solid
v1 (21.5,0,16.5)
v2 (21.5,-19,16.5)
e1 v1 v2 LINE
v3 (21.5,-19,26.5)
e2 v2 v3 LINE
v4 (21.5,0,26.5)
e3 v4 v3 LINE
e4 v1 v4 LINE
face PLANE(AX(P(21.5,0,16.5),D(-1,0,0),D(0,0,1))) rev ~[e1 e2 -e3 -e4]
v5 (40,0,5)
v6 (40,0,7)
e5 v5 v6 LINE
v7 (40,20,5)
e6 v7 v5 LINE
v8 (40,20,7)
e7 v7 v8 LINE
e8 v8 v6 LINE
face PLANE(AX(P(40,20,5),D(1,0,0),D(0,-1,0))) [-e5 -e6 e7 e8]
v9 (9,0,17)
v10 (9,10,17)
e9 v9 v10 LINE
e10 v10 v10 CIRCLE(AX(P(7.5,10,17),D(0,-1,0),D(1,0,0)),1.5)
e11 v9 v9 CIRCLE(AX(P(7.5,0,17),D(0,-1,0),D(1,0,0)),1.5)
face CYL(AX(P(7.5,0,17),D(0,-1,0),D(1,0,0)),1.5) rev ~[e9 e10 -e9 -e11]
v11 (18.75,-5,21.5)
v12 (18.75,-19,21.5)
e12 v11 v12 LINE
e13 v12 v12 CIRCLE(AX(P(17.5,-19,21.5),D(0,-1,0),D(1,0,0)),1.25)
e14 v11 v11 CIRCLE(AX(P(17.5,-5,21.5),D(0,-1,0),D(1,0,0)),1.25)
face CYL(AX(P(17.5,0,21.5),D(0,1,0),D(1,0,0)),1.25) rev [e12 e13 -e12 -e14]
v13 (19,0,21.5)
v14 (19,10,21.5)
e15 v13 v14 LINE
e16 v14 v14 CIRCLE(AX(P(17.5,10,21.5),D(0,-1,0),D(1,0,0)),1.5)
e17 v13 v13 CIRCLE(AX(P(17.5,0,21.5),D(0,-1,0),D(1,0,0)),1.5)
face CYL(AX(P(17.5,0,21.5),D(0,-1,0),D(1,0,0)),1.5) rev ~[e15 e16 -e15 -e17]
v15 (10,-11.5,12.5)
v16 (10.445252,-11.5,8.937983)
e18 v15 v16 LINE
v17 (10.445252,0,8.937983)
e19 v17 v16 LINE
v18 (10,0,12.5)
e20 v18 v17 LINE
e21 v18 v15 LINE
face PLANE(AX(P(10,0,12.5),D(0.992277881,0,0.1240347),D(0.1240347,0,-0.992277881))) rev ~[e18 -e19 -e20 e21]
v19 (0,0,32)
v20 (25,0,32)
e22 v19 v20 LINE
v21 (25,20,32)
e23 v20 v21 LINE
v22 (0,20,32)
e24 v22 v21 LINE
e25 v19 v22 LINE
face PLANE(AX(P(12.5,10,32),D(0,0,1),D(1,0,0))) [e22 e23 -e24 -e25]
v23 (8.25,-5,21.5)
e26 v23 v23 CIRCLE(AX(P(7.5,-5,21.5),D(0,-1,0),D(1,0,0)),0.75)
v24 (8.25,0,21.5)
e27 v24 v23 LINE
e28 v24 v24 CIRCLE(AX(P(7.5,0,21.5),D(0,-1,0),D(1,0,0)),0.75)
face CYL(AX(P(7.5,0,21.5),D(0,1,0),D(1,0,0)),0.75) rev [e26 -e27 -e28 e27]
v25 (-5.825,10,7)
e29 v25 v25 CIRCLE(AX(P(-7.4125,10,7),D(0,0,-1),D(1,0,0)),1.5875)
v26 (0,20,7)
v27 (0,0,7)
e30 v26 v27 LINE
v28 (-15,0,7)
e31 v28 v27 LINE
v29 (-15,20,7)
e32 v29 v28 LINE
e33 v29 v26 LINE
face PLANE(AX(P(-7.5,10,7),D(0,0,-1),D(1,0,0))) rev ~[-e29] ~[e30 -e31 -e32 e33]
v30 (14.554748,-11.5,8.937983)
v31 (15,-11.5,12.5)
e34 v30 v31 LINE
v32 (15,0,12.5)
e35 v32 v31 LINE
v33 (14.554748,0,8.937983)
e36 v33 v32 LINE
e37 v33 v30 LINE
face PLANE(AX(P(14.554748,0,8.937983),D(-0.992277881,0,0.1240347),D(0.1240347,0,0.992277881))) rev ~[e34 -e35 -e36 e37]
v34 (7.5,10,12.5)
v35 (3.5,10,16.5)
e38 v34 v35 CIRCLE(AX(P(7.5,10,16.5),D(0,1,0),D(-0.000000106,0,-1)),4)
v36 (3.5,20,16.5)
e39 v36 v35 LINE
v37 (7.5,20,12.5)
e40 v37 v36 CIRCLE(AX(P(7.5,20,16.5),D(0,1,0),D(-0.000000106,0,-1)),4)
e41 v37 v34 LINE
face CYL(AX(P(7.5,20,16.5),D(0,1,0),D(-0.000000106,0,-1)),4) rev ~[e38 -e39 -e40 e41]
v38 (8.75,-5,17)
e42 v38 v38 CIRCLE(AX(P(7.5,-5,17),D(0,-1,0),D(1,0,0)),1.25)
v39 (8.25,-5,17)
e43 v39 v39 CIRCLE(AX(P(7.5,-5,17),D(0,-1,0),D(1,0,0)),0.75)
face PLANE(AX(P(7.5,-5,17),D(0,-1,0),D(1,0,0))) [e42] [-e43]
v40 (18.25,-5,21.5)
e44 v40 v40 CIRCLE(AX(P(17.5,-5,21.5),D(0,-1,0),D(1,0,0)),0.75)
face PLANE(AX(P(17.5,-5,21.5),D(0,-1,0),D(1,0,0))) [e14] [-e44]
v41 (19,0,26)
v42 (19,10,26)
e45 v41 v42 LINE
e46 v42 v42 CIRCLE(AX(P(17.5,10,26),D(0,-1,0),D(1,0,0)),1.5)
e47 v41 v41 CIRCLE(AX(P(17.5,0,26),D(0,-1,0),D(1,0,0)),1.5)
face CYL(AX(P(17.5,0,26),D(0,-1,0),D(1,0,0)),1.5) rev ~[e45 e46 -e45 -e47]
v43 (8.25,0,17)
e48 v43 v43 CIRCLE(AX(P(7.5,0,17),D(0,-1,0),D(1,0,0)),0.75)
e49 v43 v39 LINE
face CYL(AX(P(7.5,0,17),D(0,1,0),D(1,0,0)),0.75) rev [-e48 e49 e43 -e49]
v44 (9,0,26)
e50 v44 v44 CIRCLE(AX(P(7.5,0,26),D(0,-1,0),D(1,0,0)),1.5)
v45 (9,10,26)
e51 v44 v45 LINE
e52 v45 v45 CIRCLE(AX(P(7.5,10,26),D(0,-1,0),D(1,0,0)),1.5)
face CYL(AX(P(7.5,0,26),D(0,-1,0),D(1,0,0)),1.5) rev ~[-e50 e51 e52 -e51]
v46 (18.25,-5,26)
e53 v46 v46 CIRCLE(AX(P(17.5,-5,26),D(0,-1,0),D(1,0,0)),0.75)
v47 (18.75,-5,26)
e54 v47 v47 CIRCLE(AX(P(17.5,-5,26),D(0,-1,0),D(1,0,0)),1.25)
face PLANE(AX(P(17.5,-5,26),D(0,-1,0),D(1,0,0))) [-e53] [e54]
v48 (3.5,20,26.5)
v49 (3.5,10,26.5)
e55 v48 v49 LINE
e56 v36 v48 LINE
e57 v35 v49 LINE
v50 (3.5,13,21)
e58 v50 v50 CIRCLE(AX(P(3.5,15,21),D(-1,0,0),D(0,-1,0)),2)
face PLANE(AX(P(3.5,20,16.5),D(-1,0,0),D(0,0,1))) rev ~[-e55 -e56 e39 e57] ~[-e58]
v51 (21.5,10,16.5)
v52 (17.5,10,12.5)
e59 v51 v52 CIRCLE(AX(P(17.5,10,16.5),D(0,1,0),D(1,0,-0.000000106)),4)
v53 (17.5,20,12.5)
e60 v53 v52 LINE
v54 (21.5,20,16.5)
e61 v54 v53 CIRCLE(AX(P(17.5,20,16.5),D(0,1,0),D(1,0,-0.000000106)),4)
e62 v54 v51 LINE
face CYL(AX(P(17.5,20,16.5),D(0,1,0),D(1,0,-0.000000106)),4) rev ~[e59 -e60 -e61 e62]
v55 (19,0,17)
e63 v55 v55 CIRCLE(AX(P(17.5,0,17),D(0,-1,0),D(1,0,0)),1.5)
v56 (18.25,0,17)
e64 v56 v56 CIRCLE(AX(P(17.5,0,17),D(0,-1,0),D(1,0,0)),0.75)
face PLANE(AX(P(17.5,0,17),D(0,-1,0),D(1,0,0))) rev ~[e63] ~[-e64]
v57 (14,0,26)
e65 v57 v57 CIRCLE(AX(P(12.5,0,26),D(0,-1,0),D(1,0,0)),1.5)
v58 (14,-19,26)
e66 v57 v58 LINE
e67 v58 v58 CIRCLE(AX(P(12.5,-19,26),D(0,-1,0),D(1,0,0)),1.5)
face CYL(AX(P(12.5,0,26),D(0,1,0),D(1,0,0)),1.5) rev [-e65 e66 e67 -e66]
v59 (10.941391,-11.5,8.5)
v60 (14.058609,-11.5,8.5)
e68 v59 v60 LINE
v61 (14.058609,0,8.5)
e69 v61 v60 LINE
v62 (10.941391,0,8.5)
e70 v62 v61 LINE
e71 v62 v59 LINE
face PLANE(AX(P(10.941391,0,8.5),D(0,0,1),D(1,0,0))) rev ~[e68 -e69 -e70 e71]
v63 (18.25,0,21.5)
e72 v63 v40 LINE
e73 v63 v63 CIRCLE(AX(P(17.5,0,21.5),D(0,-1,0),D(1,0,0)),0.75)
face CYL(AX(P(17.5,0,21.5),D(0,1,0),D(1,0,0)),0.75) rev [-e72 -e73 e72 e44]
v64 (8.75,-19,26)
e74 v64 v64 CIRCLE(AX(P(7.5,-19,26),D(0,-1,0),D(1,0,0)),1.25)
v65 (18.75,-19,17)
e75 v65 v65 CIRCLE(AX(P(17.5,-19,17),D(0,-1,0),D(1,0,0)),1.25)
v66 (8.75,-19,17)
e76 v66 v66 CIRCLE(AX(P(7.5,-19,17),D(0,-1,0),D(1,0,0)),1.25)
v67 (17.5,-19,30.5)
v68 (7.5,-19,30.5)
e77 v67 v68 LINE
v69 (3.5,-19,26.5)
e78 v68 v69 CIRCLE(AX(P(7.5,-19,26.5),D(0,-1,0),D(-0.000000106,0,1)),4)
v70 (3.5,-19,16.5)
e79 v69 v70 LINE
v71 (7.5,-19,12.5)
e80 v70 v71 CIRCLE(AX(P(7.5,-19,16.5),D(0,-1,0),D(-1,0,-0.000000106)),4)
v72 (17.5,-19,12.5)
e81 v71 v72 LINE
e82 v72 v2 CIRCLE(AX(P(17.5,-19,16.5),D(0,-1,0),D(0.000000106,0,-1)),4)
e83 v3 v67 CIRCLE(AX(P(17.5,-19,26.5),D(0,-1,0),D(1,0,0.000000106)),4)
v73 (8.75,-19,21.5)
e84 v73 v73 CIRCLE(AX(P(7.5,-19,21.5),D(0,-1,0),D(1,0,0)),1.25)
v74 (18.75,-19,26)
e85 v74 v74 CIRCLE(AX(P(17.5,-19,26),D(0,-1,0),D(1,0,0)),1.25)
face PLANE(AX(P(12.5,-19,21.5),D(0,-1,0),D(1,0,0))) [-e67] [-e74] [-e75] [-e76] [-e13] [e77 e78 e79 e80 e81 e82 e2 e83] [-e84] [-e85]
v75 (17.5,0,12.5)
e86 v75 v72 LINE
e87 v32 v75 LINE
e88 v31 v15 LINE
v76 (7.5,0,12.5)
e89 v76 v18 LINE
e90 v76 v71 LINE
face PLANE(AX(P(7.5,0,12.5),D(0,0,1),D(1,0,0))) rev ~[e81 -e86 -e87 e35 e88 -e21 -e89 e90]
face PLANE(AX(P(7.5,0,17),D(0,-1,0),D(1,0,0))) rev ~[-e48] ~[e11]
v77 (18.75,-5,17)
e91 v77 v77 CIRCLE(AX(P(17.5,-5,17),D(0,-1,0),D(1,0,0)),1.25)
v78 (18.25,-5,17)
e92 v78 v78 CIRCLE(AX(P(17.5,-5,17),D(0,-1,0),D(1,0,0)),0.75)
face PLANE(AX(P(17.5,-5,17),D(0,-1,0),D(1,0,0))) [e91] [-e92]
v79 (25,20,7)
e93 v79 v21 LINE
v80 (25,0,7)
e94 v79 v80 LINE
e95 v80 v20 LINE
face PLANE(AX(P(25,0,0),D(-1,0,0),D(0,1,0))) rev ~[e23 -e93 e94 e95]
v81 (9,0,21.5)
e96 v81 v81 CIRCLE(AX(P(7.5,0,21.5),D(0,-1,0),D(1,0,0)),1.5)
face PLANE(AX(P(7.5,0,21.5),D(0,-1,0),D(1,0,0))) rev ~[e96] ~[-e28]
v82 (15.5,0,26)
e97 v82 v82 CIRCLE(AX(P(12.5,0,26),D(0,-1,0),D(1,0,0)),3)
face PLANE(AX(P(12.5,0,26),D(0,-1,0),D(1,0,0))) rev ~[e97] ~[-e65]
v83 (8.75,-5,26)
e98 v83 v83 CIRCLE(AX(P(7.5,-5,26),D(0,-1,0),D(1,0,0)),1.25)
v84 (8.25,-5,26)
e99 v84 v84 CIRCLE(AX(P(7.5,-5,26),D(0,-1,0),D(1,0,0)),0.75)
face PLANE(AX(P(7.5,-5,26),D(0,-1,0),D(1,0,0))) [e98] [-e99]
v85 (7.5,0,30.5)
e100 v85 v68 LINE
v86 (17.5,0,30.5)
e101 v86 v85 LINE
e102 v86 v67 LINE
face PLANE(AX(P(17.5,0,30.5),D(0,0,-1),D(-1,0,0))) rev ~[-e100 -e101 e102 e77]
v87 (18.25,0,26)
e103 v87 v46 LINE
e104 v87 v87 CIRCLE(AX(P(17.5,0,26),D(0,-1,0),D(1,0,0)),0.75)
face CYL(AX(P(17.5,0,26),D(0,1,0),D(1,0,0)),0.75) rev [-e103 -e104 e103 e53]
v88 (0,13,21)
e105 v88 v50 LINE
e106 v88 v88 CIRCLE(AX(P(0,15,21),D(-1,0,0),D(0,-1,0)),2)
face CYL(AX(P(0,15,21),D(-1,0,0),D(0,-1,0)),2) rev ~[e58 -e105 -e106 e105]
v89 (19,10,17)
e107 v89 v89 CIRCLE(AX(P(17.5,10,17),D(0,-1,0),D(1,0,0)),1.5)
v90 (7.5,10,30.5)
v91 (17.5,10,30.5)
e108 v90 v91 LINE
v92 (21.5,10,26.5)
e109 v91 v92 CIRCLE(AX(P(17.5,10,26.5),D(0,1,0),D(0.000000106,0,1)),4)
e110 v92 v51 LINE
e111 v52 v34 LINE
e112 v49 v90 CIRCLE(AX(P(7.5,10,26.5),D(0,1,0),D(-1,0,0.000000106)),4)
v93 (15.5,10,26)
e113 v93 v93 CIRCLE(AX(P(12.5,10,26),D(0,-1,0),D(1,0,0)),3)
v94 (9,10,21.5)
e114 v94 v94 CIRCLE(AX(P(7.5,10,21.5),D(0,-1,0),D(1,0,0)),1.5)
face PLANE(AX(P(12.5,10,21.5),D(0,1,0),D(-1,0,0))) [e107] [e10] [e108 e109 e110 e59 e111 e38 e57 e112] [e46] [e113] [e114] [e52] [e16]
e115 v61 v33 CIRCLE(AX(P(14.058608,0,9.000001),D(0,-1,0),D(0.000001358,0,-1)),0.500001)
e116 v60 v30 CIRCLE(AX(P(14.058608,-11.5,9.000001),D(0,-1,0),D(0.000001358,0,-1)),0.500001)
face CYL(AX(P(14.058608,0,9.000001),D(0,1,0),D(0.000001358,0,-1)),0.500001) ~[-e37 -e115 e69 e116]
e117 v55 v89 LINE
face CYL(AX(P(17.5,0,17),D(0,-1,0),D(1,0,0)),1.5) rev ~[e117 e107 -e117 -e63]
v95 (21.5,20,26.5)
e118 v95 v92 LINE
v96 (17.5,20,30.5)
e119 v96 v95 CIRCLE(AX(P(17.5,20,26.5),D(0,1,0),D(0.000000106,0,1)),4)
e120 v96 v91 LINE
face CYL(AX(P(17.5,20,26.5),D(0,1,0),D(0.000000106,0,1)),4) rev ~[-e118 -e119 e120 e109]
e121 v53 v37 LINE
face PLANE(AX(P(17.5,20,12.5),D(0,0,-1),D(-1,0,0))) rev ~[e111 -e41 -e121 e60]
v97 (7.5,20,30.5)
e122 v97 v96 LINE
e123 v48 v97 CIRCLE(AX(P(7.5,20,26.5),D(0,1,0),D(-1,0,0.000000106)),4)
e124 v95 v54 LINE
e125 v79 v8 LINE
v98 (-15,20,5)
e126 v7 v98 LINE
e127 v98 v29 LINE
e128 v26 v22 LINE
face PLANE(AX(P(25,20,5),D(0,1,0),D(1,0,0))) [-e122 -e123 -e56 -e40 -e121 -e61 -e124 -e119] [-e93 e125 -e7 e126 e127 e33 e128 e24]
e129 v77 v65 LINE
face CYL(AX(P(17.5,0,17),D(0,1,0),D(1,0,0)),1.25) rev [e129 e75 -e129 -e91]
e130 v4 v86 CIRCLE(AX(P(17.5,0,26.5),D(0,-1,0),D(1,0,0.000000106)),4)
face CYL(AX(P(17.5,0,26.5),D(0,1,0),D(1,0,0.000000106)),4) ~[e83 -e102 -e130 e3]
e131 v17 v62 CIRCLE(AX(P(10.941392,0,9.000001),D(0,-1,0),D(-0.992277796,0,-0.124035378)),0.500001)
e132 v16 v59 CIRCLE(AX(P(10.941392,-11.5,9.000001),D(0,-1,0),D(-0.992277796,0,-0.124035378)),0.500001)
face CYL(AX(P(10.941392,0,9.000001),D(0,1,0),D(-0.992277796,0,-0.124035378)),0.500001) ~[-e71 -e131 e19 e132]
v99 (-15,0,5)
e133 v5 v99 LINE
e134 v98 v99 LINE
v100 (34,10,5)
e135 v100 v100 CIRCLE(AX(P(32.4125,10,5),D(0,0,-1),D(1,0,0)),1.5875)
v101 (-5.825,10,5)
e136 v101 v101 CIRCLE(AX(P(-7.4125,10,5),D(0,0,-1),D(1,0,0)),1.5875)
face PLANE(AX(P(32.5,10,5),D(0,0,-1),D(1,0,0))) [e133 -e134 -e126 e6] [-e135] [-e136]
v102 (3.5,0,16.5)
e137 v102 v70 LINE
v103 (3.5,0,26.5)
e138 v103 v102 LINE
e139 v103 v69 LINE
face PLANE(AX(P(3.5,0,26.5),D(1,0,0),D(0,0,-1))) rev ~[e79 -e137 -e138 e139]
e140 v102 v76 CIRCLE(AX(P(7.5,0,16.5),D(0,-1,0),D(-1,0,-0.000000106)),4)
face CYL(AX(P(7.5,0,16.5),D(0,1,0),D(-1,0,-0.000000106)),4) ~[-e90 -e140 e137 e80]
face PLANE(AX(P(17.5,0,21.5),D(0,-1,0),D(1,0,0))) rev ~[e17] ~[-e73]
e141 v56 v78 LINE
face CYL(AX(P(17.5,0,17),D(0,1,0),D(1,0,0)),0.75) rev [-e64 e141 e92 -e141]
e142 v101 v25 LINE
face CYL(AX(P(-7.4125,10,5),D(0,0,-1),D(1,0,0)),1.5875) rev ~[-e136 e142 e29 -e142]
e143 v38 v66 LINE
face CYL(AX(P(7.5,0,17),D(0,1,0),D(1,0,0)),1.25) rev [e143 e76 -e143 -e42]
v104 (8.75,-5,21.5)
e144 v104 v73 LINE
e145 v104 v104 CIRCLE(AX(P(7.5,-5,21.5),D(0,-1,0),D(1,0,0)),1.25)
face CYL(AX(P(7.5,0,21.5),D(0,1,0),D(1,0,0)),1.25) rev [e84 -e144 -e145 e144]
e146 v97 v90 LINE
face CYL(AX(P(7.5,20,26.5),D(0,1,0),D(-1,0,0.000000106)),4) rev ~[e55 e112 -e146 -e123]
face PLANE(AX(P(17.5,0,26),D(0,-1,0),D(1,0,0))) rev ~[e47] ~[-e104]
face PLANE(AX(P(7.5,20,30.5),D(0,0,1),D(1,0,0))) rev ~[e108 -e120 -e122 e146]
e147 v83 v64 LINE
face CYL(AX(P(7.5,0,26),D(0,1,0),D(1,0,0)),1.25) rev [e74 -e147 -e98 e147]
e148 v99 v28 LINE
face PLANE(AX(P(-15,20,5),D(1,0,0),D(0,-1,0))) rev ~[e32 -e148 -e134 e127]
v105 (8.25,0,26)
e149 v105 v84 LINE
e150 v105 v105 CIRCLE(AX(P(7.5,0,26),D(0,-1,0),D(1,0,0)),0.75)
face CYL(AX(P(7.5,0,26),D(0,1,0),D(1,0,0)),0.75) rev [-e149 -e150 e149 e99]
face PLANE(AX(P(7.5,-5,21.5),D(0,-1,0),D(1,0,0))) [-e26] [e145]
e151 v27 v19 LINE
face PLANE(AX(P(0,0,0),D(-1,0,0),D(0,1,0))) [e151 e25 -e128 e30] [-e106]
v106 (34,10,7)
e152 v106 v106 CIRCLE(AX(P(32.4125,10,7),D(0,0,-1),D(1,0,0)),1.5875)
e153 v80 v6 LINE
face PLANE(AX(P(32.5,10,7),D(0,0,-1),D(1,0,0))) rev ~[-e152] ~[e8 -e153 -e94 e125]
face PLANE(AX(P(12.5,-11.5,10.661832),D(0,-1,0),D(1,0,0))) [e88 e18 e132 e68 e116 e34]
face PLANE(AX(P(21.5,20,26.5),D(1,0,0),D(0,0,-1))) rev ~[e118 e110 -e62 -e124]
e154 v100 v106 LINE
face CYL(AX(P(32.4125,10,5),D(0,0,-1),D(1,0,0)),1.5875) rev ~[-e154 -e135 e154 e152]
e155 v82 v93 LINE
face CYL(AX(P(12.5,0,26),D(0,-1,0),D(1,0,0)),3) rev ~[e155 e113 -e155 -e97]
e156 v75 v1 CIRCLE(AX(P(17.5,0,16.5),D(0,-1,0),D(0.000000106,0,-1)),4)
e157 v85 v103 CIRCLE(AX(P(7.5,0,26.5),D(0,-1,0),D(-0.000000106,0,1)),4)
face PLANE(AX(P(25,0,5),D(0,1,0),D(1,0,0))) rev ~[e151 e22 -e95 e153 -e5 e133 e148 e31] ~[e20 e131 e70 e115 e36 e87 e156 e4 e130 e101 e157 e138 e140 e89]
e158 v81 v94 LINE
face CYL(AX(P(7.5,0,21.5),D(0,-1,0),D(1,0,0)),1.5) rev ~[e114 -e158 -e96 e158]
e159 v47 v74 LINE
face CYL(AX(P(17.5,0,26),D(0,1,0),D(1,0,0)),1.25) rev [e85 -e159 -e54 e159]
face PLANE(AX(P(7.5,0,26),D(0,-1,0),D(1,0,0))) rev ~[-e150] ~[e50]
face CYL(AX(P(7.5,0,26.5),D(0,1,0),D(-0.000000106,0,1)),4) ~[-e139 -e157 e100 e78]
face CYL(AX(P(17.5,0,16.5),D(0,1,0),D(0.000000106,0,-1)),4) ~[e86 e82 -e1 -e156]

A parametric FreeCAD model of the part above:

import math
import FreeCAD as App
import Part
import Sketcher
from FreeCAD import Vector


def add_polygon(sketch, points):
    """Adds a closed chain of lines whose ends are joined by coincident constraints."""
    first, n = sketch.GeometryCount, len(points)
    for a, b in zip(points, points[1:] + points[:1]):
        sketch.addGeometry(Part.LineSegment(App.Vector(*a, 0), App.Vector(*b, 0)), False)
    for i in range(n):
        sketch.addConstraint(Sketcher.Constraint("Coincident", first + i, 2, first + (i + 1) % n, 1))

doc = App.newDocument("Part")
params = doc.addObject("Spreadsheet::Sheet", "Params")
for row, (alias, value) in enumerate([
    ("sketch1_width", "25 mm"),
    ("sketch1_height", "20 mm"),
    ("pad1_length", "32 mm"),
    ("sketch2_diameter", "3 mm"),
    ("sketch2_radius", "4 mm"),
    ("sketch2_diameter2", "2.5 mm"),
    ("sketch2_width", "10 mm"),
    ("pad2_length", "19 mm"),
    ("sketch3_radius", "4 mm"),
    ("sketch3_width", "10 mm"),
    ("pocket1_length", "10 mm"),
    ("sketch4_radius", "0.500001 mm"),
    ("sketch4_width", "5 mm"),
    ("pad3_length", "11.5 mm"),
    ("sketch5_diameter", "6 mm"),
    ("sketch5_diameter2", "3 mm"),
    ("sketch6_diameter", "2.5 mm"),
    ("sketch6_diameter2", "1.5 mm"),
    ("pad4_length", "5 mm"),
    ("sketch7_diameter", "4 mm"),
    ("pocket3_length", "3.5 mm"),
    ("sketch8_width", "20 mm"),
    ("sketch8_height", "5 mm"),
    ("pocket4_length", "25 mm"),
    ("sketch9_width", "15 mm"),
    ("sketch9_height", "20 mm"),
    ("pad5_length", "2 mm"),
], start=1):
    params.set(f"A{row}", alias)
    params.set(f"B{row}", "=" + value)
    params.setAlias(f"B{row}", alias)

body = doc.addObject("PartDesign::Body", "Body")

sketch1 = body.newObject("Sketcher::SketchObject", "Sketch")
sketch1.AttachmentSupport = (doc.getObject("XY_Plane"), [""])
sketch1.MapMode = "FlatFace"
add_polygon(sketch1, [(0, 20), (0, 0), (25, 0), (25, 20)])
sketch1.addConstraint(Sketcher.Constraint("Vertical", 0))
sketch1.addConstraint(Sketcher.Constraint("Horizontal", 1))
sketch1.addConstraint(Sketcher.Constraint("Vertical", 2))
sketch1.addConstraint(Sketcher.Constraint("Horizontal", 3))
sketch1.addConstraint(Sketcher.Constraint("Coincident", 0, 2, -1, 1))
sketch1.addConstraint(Sketcher.Constraint("DistanceX", 1, 1, 1, 2, 25.0))
sketch1.addConstraint(Sketcher.Constraint("DistanceY", 0, 2, 0, 1, 20.0))
sketch1.setExpression("Constraints[9]", "Params.sketch1_width")
sketch1.setExpression("Constraints[10]", "Params.sketch1_height")
pad1 = body.newObject("PartDesign::Pad", "Pad")
pad1.Profile = sketch1
pad1.setExpression("Length", "Params.pad1_length")

sketch2 = body.newObject("Sketcher::SketchObject", "Sketch001")
sketch2.AttachmentSupport = (doc.getObject("XZ_Plane"), [""])
sketch2.MapMode = "FlatFace"
sketch2.addGeometry(Part.LineSegment(Vector(17.5, 30.5, 0), Vector(7.5, 30.5, 0)), False)
sketch2.addGeometry(Part.ArcOfCircle(Part.Circle(Vector(7.5, 26.5, 0), Vector(0, 0, 1), 4), math.radians(90), math.radians(180)), False)
sketch2.addGeometry(Part.LineSegment(Vector(3.5, 26.5, 0), Vector(3.5, 16.5, 0)), False)
sketch2.addGeometry(Part.ArcOfCircle(Part.Circle(Vector(7.5, 16.5, 0), Vector(0, 0, 1), 4), math.radians(-180), math.radians(-90)), False)
sketch2.addGeometry(Part.LineSegment(Vector(7.5, 12.5, 0), Vector(17.5, 12.5, 0)), False)
sketch2.addGeometry(Part.ArcOfCircle(Part.Circle(Vector(17.5, 16.5, 0), Vector(0, 0, 1), 4), math.radians(-90), math.radians(0)), False)
sketch2.addGeometry(Part.LineSegment(Vector(21.5, 16.5, 0), Vector(21.5, 26.5, 0)), False)
sketch2.addGeometry(Part.ArcOfCircle(Part.Circle(Vector(17.5, 26.5, 0), Vector(0, 0, 1), 4), math.radians(0), math.radians(90)), False)
sketch2.addGeometry(Part.Circle(Vector(7.5, 17, 0), Vector(0, 0, 1), 1.2), False)
sketch2.addGeometry(Part.Circle(Vector(7.5, 21.5, 0), Vector(0, 0, 1), 1.2), False)
sketch2.addGeometry(Part.Circle(Vector(17.5, 17, 0), Vector(0, 0, 1), 1.2), False)
sketch2.addGeometry(Part.Circle(Vector(17.5, 21.5, 0), Vector(0, 0, 1), 1.2), False)
sketch2.addGeometry(Part.Circle(Vector(7.5, 26, 0), Vector(0, 0, 1), 1.2), False)
sketch2.addGeometry(Part.Circle(Vector(12.5, 26, 0), Vector(0, 0, 1), 1.5), False)
sketch2.addGeometry(Part.Circle(Vector(17.5, 26, 0), Vector(0, 0, 1), 1.2), False)
sketch2.addConstraint(Sketcher.Constraint("Tangent", 0, 2, 1, 1))
sketch2.addConstraint(Sketcher.Constraint("Tangent", 1, 2, 2, 1))
sketch2.addConstraint(Sketcher.Constraint("Tangent", 2, 2, 3, 1))
sketch2.addConstraint(Sketcher.Constraint("Tangent", 3, 2, 4, 1))
sketch2.addConstraint(Sketcher.Constraint("Tangent", 4, 2, 5, 1))
sketch2.addConstraint(Sketcher.Constraint("Tangent", 5, 2, 6, 1))
sketch2.addConstraint(Sketcher.Constraint("Tangent", 6, 2, 7, 1))
sketch2.addConstraint(Sketcher.Constraint("Tangent", 7, 2, 0, 1))
sketch2.addConstraint(Sketcher.Constraint("Horizontal", 0))
sketch2.addConstraint(Sketcher.Constraint("Vertical", 2))
sketch2.addConstraint(Sketcher.Constraint("Horizontal", 4))
sketch2.addConstraint(Sketcher.Constraint("Vertical", 6))
sketch2.addConstraint(Sketcher.Constraint("Equal", 1, 3))
sketch2.addConstraint(Sketcher.Constraint("Equal", 3, 5))
sketch2.addConstraint(Sketcher.Constraint("Equal", 5, 7))
sketch2.addConstraint(Sketcher.Constraint("Equal", 8, 9))
sketch2.addConstraint(Sketcher.Constraint("Equal", 9, 10))
sketch2.addConstraint(Sketcher.Constraint("Equal", 10, 11))
sketch2.addConstraint(Sketcher.Constraint("Equal", 11, 12))
sketch2.addConstraint(Sketcher.Constraint("Equal", 12, 14))
sketch2.addConstraint(Sketcher.Constraint("Horizontal", 8, 3, 10, 3))
sketch2.addConstraint(Sketcher.Constraint("Horizontal", 9, 3, 11, 3))
sketch2.addConstraint(Sketcher.Constraint("Horizontal", 12, 3, 13, 3))
sketch2.addConstraint(Sketcher.Constraint("Horizontal", 13, 3, 14, 3))
sketch2.addConstraint(Sketcher.Constraint("Vertical", 3, 3, 8, 3))
sketch2.addConstraint(Sketcher.Constraint("Vertical", 8, 3, 9, 3))
sketch2.addConstraint(Sketcher.Constraint("Vertical", 7, 3, 10, 3))
sketch2.addConstraint(Sketcher.Constraint("Vertical", 10, 3, 11, 3))
sketch2.addConstraint(Sketcher.Constraint("Vertical", 9, 3, 12, 3))
sketch2.addConstraint(Sketcher.Constraint("Vertical", 11, 3, 14, 3))
sketch2.addConstraint(Sketcher.Constraint("Equal", 4, 2))
sketch2.addConstraint(Sketcher.Constraint("Diameter", 13, 3.0))
sketch2.addConstraint(Sketcher.Constraint("Radius", 1, 4.0))
sketch2.addConstraint(Sketcher.Constraint("Diameter", 8, 2.5))
sketch2.addConstraint(Sketcher.Constraint("DistanceX", 0, 2, 0, 1, 10.0))
sketch2.addConstraint(Sketcher.Constraint("DistanceY", -1, 1, 8, 3, 17.0))
sketch2.addConstraint(Sketcher.Constraint("DistanceY", -1, 1, 12, 3, 26.0))
sketch2.addConstraint(Sketcher.Constraint("DistanceY", 9, 3, 1, 3, 5.0))
sketch2.addConstraint(Sketcher.Constraint("DistanceX", 12, 3, 13, 3, 5.0))
sketch2.addConstraint(Sketcher.Constraint("DistanceX", -1, 1, 1, 3, 7.5))
sketch2.addConstraint(Sketcher.Constraint("DistanceY", -1, 1, 1, 3, 26.5))
sketch2.setExpression("Constraints[31]", "Params.sketch2_diameter")
sketch2.setExpression("Constraints[32]", "Params.sketch2_radius")
sketch2.setExpression("Constraints[33]", "Params.sketch2_diameter2")
sketch2.setExpression("Constraints[34]", "Params.sketch2_width")
pad2 = body.newObject("PartDesign::Pad", "Pad001")
pad2.Profile = sketch2
pad2.setExpression("Length", "Params.pad2_length")

sketch3 = body.newObject("Sketcher::SketchObject", "Sketch002")
sketch3.AttachmentSupport = (doc.getObject("XZ_Plane"), [""])
sketch3.MapMode = "FlatFace"
sketch3.AttachmentOffset = App.Placement(Vector(0, 0, -20), App.Rotation())
sketch3.addGeometry(Part.LineSegment(Vector(7.5, 30.5, 0), Vector(17.5, 30.5, 0)), False)
sketch3.addGeometry(Part.ArcOfCircle(Part.Circle(Vector(17.5, 26.5, 0), Vector(0, 0, 1), 4), math.radians(0), math.radians(90)), False)
sketch3.addGeometry(Part.LineSegment(Vector(21.5, 26.5, 0), Vector(21.5, 16.5, 0)), False)
sketch3.addGeometry(Part.ArcOfCircle(Part.Circle(Vector(17.5, 16.5, 0), Vector(0, 0, 1), 4), math.radians(-90), math.radians(0)), False)
sketch3.addGeometry(Part.LineSegment(Vector(17.5, 12.5, 0), Vector(7.5, 12.5, 0)), False)
sketch3.addGeometry(Part.ArcOfCircle(Part.Circle(Vector(7.5, 16.5, 0), Vector(0, 0, 1), 4), math.radians(-180), math.radians(-90)), False)
sketch3.addGeometry(Part.LineSegment(Vector(3.5, 16.5, 0), Vector(3.5, 26.5, 0)), False)
sketch3.addGeometry(Part.ArcOfCircle(Part.Circle(Vector(7.5, 26.5, 0), Vector(0, 0, 1), 4), math.radians(90), math.radians(180)), False)
sketch3.addConstraint(Sketcher.Constraint("Tangent", 0, 2, 1, 2))
sketch3.addConstraint(Sketcher.Constraint("Tangent", 1, 1, 2, 1))
sketch3.addConstraint(Sketcher.Constraint("Tangent", 2, 2, 3, 2))
sketch3.addConstraint(Sketcher.Constraint("Tangent", 3, 1, 4, 1))
sketch3.addConstraint(Sketcher.Constraint("Tangent", 4, 2, 5, 2))
sketch3.addConstraint(Sketcher.Constraint("Tangent", 5, 1, 6, 1))
sketch3.addConstraint(Sketcher.Constraint("Tangent", 6, 2, 7, 2))
sketch3.addConstraint(Sketcher.Constraint("Tangent", 7, 1, 0, 1))
sketch3.addConstraint(Sketcher.Constraint("Horizontal", 0))
sketch3.addConstraint(Sketcher.Constraint("Vertical", 2))
sketch3.addConstraint(Sketcher.Constraint("Horizontal", 4))
sketch3.addConstraint(Sketcher.Constraint("Vertical", 6))
sketch3.addConstraint(Sketcher.Constraint("Equal", 1, 3))
sketch3.addConstraint(Sketcher.Constraint("Equal", 3, 5))
sketch3.addConstraint(Sketcher.Constraint("Equal", 5, 7))
sketch3.addConstraint(Sketcher.Constraint("Equal", 4, 2))
sketch3.addConstraint(Sketcher.Constraint("Radius", 1, 4.0))
sketch3.addConstraint(Sketcher.Constraint("DistanceX", 0, 1, 0, 2, 10.0))
sketch3.addConstraint(Sketcher.Constraint("DistanceX", -1, 1, 1, 3, 17.5))
sketch3.addConstraint(Sketcher.Constraint("DistanceY", -1, 1, 1, 3, 26.5))
sketch3.setExpression("Constraints[16]", "Params.sketch3_radius")
sketch3.setExpression("Constraints[17]", "Params.sketch3_width")
pocket1 = body.newObject("PartDesign::Pocket", "Pocket")
pocket1.Profile = sketch3
pocket1.setExpression("Length", "Params.pocket1_length")
pocket1.Reversed = True

sketch4 = body.newObject("Sketcher::SketchObject", "Sketch003")
sketch4.AttachmentSupport = (doc.getObject("XZ_Plane"), [""])
sketch4.MapMode = "FlatFace"
sketch4.addGeometry(Part.LineSegment(Vector(15, 12.5, 0), Vector(10, 12.5, 0)), False)
sketch4.addGeometry(Part.LineSegment(Vector(10, 12.5, 0), Vector(10.4, 8.9, 0)), False)
sketch4.addGeometry(Part.ArcOfCircle(Part.Circle(Vector(10.9, 9, 0), Vector(0, 0, 1), 0.5), math.radians(-173), math.radians(-90)), False)
sketch4.addGeometry(Part.LineSegment(Vector(10.9, 8.5, 0), Vector(14.1, 8.5, 0)), False)
sketch4.addGeometry(Part.ArcOfCircle(Part.Circle(Vector(14.1, 9, 0), Vector(0, 0, 1), 0.5), math.radians(-90), math.radians(-7)), False)
sketch4.addGeometry(Part.LineSegment(Vector(14.6, 8.9, 0), Vector(15, 12.5, 0)), False)
sketch4.addConstraint(Sketcher.Constraint("Coincident", 0, 2, 1, 1))
sketch4.addConstraint(Sketcher.Constraint("Tangent", 1, 2, 2, 1))
sketch4.addConstraint(Sketcher.Constraint("Tangent", 2, 2, 3, 1))
sketch4.addConstraint(Sketcher.Constraint("Tangent", 3, 2, 4, 1))
sketch4.addConstraint(Sketcher.Constraint("Tangent", 4, 2, 5, 1))
sketch4.addConstraint(Sketcher.Constraint("Coincident", 5, 2, 0, 1))
sketch4.addConstraint(Sketcher.Constraint("Horizontal", 0))
sketch4.addConstraint(Sketcher.Constraint("Horizontal", 3))
sketch4.addConstraint(Sketcher.Constraint("Equal", 2, 4))
sketch4.addConstraint(Sketcher.Constraint("Horizontal", 1, 2, 4, 2))
sketch4.addConstraint(Sketcher.Constraint("Radius", 2, 0.500001))
sketch4.addConstraint(Sketcher.Constraint("DistanceX", 0, 2, 0, 1, 5.0))
sketch4.addConstraint(Sketcher.Constraint("DistanceY", -1, 1, 2, 3, 9.000001))
sketch4.addConstraint(Sketcher.Constraint("DistanceX", -1, 1, 0, 2, 10.0))
sketch4.addConstraint(Sketcher.Constraint("DistanceY", 2, 2, 0, 2, 4.0))
sketch4.addConstraint(Sketcher.Constraint("DistanceX", 3, 1, 3, 2, 3.117218))
sketch4.setExpression("Constraints[10]", "Params.sketch4_radius")
sketch4.setExpression("Constraints[11]", "Params.sketch4_width")
pad3 = body.newObject("PartDesign::Pad", "Pad002")
pad3.Profile = sketch4
pad3.setExpression("Length", "Params.pad3_length")

sketch5 = body.newObject("Sketcher::SketchObject", "Sketch004")
sketch5.AttachmentSupport = (doc.getObject("XZ_Plane"), [""])
sketch5.MapMode = "FlatFace"
sketch5.addGeometry(Part.Circle(Vector(12.5, 26, 0), Vector(0, 0, 1), 3), False)
sketch5.addGeometry(Part.Circle(Vector(7.5, 26, 0), Vector(0, 0, 1), 1.5), False)
sketch5.addGeometry(Part.Circle(Vector(7.5, 21.5, 0), Vector(0, 0, 1), 1.5), False)
sketch5.addGeometry(Part.Circle(Vector(7.5, 17, 0), Vector(0, 0, 1), 1.5), False)
sketch5.addGeometry(Part.Circle(Vector(17.5, 26, 0), Vector(0, 0, 1), 1.5), False)
sketch5.addGeometry(Part.Circle(Vector(17.5, 21.5, 0), Vector(0, 0, 1), 1.5), False)
sketch5.addGeometry(Part.Circle(Vector(17.5, 17, 0), Vector(0, 0, 1), 1.5), False)
sketch5.addConstraint(Sketcher.Constraint("Equal", 1, 2))
sketch5.addConstraint(Sketcher.Constraint("Equal", 2, 3))
sketch5.addConstraint(Sketcher.Constraint("Equal", 3, 4))
sketch5.addConstraint(Sketcher.Constraint("Equal", 4, 5))
sketch5.addConstraint(Sketcher.Constraint("Equal", 5, 6))
sketch5.addConstraint(Sketcher.Constraint("Horizontal", 0, 3, 1, 3))
sketch5.addConstraint(Sketcher.Constraint("Horizontal", 1, 3, 4, 3))
sketch5.addConstraint(Sketcher.Constraint("Horizontal", 2, 3, 5, 3))
sketch5.addConstraint(Sketcher.Constraint("Horizontal", 3, 3, 6, 3))
sketch5.addConstraint(Sketcher.Constraint("Vertical", 1, 3, 2, 3))
sketch5.addConstraint(Sketcher.Constraint("Vertical", 2, 3, 3, 3))
sketch5.addConstraint(Sketcher.Constraint("Vertical", 4, 3, 5, 3))
sketch5.addConstraint(Sketcher.Constraint("Vertical", 5, 3, 6, 3))
sketch5.addConstraint(Sketcher.Constraint("Diameter", 0, 6.0))
sketch5.addConstraint(Sketcher.Constraint("Diameter", 1, 3.0))
sketch5.addConstraint(Sketcher.Constraint("DistanceY", -1, 1, 0, 3, 26.0))
sketch5.addConstraint(Sketcher.Constraint("DistanceY", -1, 1, 3, 3, 17.0))
sketch5.addConstraint(Sketcher.Constraint("DistanceX", 1, 3, 0, 3, 5.0))
sketch5.addConstraint(Sketcher.Constraint("DistanceX", 0, 3, 4, 3, 5.0))
sketch5.addConstraint(Sketcher.Constraint("DistanceX", -1, 1, 0, 3, 12.5))
sketch5.addConstraint(Sketcher.Constraint("DistanceY", -1, 1, 2, 3, 21.5))
sketch5.setExpression("Constraints[13]", "Params.sketch5_diameter")
sketch5.setExpression("Constraints[14]", "Params.sketch5_diameter2")
pocket2 = body.newObject("PartDesign::Pocket", "Pocket001")
pocket2.Profile = sketch5
pocket2.Type = "ThroughAll"

sketch6 = body.newObject("Sketcher::SketchObject", "Sketch005")
sketch6.AttachmentSupport = (doc.getObject("XZ_Plane"), [""])
sketch6.MapMode = "FlatFace"
sketch6.addGeometry(Part.Circle(Vector(7.5, 26, 0), Vector(0, 0, 1), 1.2), False)
sketch6.addGeometry(Part.Circle(Vector(7.5, 26, 0), Vector(0, 0, 1), 0.8), False)
sketch6.addGeometry(Part.Circle(Vector(7.5, 21.5, 0), Vector(0, 0, 1), 1.2), False)
sketch6.addGeometry(Part.Circle(Vector(7.5, 21.5, 0), Vector(0, 0, 1), 0.8), False)
sketch6.addGeometry(Part.Circle(Vector(7.5, 17, 0), Vector(0, 0, 1), 1.2), False)
sketch6.addGeometry(Part.Circle(Vector(7.5, 17, 0), Vector(0, 0, 1), 0.8), False)
sketch6.addGeometry(Part.Circle(Vector(17.5, 26, 0), Vector(0, 0, 1), 1.2), False)
sketch6.addGeometry(Part.Circle(Vector(17.5, 26, 0), Vector(0, 0, 1), 0.8), False)
sketch6.addGeometry(Part.Circle(Vector(17.5, 21.5, 0), Vector(0, 0, 1), 1.2), False)
sketch6.addGeometry(Part.Circle(Vector(17.5, 21.5, 0), Vector(0, 0, 1), 0.8), False)
sketch6.addGeometry(Part.Circle(Vector(17.5, 17, 0), Vector(0, 0, 1), 1.2), False)
sketch6.addGeometry(Part.Circle(Vector(17.5, 17, 0), Vector(0, 0, 1), 0.8), False)
sketch6.addConstraint(Sketcher.Constraint("Coincident", 1, 3, 0, 3))
sketch6.addConstraint(Sketcher.Constraint("Coincident", 3, 3, 2, 3))
sketch6.addConstraint(Sketcher.Constraint("Coincident", 5, 3, 4, 3))
sketch6.addConstraint(Sketcher.Constraint("Coincident", 7, 3, 6, 3))
sketch6.addConstraint(Sketcher.Constraint("Coincident", 9, 3, 8, 3))
sketch6.addConstraint(Sketcher.Constraint("Coincident", 11, 3, 10, 3))
sketch6.addConstraint(Sketcher.Constraint("Equal", 0, 2))
sketch6.addConstraint(Sketcher.Constraint("Equal", 1, 3))
sketch6.addConstraint(Sketcher.Constraint("Equal", 2, 4))
sketch6.addConstraint(Sketcher.Constraint("Equal", 3, 5))
sketch6.addConstraint(Sketcher.Constraint("Equal", 4, 6))
sketch6.addConstraint(Sketcher.Constraint("Equal", 5, 7))
sketch6.addConstraint(Sketcher.Constraint("Equal", 6, 8))
sketch6.addConstraint(Sketcher.Constraint("Equal", 7, 9))
sketch6.addConstraint(Sketcher.Constraint("Equal", 8, 10))
sketch6.addConstraint(Sketcher.Constraint("Equal", 9, 11))
sketch6.addConstraint(Sketcher.Constraint("Horizontal", 1, 3, 6, 3))
sketch6.addConstraint(Sketcher.Constraint("Horizontal", 3, 3, 8, 3))
sketch6.addConstraint(Sketcher.Constraint("Horizontal", 5, 3, 10, 3))
sketch6.addConstraint(Sketcher.Constraint("Vertical", 1, 3, 2, 3))
sketch6.addConstraint(Sketcher.Constraint("Vertical", 3, 3, 4, 3))
sketch6.addConstraint(Sketcher.Constraint("Vertical", 7, 3, 8, 3))
sketch6.addConstraint(Sketcher.Constraint("Vertical", 9, 3, 10, 3))
sketch6.addConstraint(Sketcher.Constraint("Diameter", 0, 2.5))
sketch6.addConstraint(Sketcher.Constraint("Diameter", 1, 1.5))
sketch6.addConstraint(Sketcher.Constraint("DistanceY", -1, 1, 0, 3, 26.0))
sketch6.addConstraint(Sketcher.Constraint("DistanceY", -1, 1, 4, 3, 17.0))
sketch6.addConstraint(Sketcher.Constraint("DistanceX", 0, 3, 6, 3, 10.0))
sketch6.addConstraint(Sketcher.Constraint("DistanceX", -1, 1, 0, 3, 7.5))
sketch6.addConstraint(Sketcher.Constraint("DistanceY", -1, 1, 2, 3, 21.5))
sketch6.setExpression("Constraints[23]", "Params.sketch6_diameter")
sketch6.setExpression("Constraints[24]", "Params.sketch6_diameter2")
pad4 = body.newObject("PartDesign::Pad", "Pad003")
pad4.Profile = sketch6
pad4.setExpression("Length", "Params.pad4_length")

sketch7 = body.newObject("Sketcher::SketchObject", "Sketch006")
sketch7.AttachmentSupport = (doc.getObject("YZ_Plane"), [""])
sketch7.MapMode = "FlatFace"
sketch7.addGeometry(Part.Circle(Vector(15, 21, 0), Vector(0, 0, 1), 2), False)
sketch7.addConstraint(Sketcher.Constraint("Diameter", 0, 4.0))
sketch7.addConstraint(Sketcher.Constraint("DistanceX", -1, 1, 0, 3, 15.0))
sketch7.addConstraint(Sketcher.Constraint("DistanceY", -1, 1, 0, 3, 21.0))
sketch7.setExpression("Constraints[0]", "Params.sketch7_diameter")
pocket3 = body.newObject("PartDesign::Pocket", "Pocket002")
pocket3.Profile = sketch7
pocket3.setExpression("Length", "Params.pocket3_length")
pocket3.Reversed = True

sketch8 = body.newObject("Sketcher::SketchObject", "Sketch007")
sketch8.AttachmentSupport = (doc.getObject("YZ_Plane"), [""])
sketch8.MapMode = "FlatFace"
add_polygon(sketch8, [(20, 5), (20, 0), (0, 0), (0, 5)])
sketch8.addConstraint(Sketcher.Constraint("Vertical", 0))
sketch8.addConstraint(Sketcher.Constraint("Horizontal", 1))
sketch8.addConstraint(Sketcher.Constraint("Vertical", 2))
sketch8.addConstraint(Sketcher.Constraint("Horizontal", 3))
sketch8.addConstraint(Sketcher.Constraint("Coincident", 1, 2, -1, 1))
sketch8.addConstraint(Sketcher.Constraint("DistanceX", 1, 2, 1, 1, 20.0))
sketch8.addConstraint(Sketcher.Constraint("DistanceY", 0, 2, 0, 1, 5.0))
sketch8.setExpression("Constraints[9]", "Params.sketch8_width")
sketch8.setExpression("Constraints[10]", "Params.sketch8_height")
pocket4 = body.newObject("PartDesign::Pocket", "Pocket003")
pocket4.Profile = sketch8
pocket4.setExpression("Length", "Params.pocket4_length")
pocket4.Reversed = True

sketch9 = body.newObject("Sketcher::SketchObject", "Sketch008")
sketch9.AttachmentSupport = (doc.getObject("XY_Plane"), [""])
sketch9.MapMode = "FlatFace"
sketch9.AttachmentOffset = App.Placement(Vector(0, 0, 5), App.Rotation())
add_polygon(sketch9, [(25, 0), (25, 20), (40, 20), (40, 0)])
sketch9.addGeometry(Part.Circle(Vector(32.4, 10, 0), Vector(0, 0, 1), 1.6), False)
add_polygon(sketch9, [(-15, 0), (-15, 20), (0, 20), (0, 0)])
sketch9.addGeometry(Part.Circle(Vector(-7.4, 10, 0), Vector(0, 0, 1), 1.6), False)
sketch9.addConstraint(Sketcher.Constraint("Vertical", 0))
sketch9.addConstraint(Sketcher.Constraint("Horizontal", 1))
sketch9.addConstraint(Sketcher.Constraint("Vertical", 2))
sketch9.addConstraint(Sketcher.Constraint("Horizontal", 3))
sketch9.addConstraint(Sketcher.Constraint("Vertical", 5))
sketch9.addConstraint(Sketcher.Constraint("Horizontal", 6))
sketch9.addConstraint(Sketcher.Constraint("Vertical", 7))
sketch9.addConstraint(Sketcher.Constraint("Horizontal", 8))
sketch9.addConstraint(Sketcher.Constraint("Coincident", 7, 2, -1, 1))
sketch9.addConstraint(Sketcher.Constraint("Equal", 4, 9))
sketch9.addConstraint(Sketcher.Constraint("PointOnObject", 2, 2, -1))
sketch9.addConstraint(Sketcher.Constraint("Horizontal", 4, 3, 9, 3))
sketch9.addConstraint(Sketcher.Constraint("Horizontal", 1, 2, 5, 2))
sketch9.addConstraint(Sketcher.Constraint("Equal", 3, 6))
sketch9.addConstraint(Sketcher.Constraint("DistanceX", 1, 1, 1, 2, 15.0))
sketch9.addConstraint(Sketcher.Constraint("DistanceY", 0, 1, 0, 2, 20.0))
sketch9.addConstraint(Sketcher.Constraint("Diameter", 4, 3.175))
sketch9.addConstraint(Sketcher.Constraint("DistanceY", -1, 1, 4, 3, 10.0))
sketch9.addConstraint(Sketcher.Constraint("DistanceX", -1, 1, 0, 2, 25.0))
sketch9.addConstraint(Sketcher.Constraint("DistanceX", 9, 3, 4, 3, 39.825))
sketch9.addConstraint(Sketcher.Constraint("DistanceX", -1, 1, 4, 3, 32.4125))
sketch9.setExpression("Constraints[22]", "Params.sketch9_width")
sketch9.setExpression("Constraints[23]", "Params.sketch9_height")
pad5 = body.newObject("PartDesign::Pad", "Pad004")
pad5.Profile = sketch9
pad5.setExpression("Length", "Params.pad5_length")

doc.recompute()
